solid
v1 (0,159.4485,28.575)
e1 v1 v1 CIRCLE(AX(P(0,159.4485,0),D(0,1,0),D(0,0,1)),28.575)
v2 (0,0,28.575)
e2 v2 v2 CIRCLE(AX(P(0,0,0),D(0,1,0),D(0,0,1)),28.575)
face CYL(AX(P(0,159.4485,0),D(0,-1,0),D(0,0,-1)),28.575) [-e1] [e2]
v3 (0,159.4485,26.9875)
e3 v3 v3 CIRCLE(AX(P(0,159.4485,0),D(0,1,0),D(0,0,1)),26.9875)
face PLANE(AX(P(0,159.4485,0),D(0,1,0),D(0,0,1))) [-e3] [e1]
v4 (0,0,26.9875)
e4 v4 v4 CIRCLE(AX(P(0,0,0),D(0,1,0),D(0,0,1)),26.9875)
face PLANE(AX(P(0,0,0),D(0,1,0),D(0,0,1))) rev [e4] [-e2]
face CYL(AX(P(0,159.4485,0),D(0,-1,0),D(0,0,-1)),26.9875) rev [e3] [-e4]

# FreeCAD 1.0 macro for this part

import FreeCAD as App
import Part
import Sketcher
Q = App.Units.Quantity

doc = App.newDocument("Part")
body = doc.addObject("PartDesign::Body", "Body")

# Sketch on XZ plane
sketch1 = body.newObject("Sketcher::SketchObject", "Sketch")
sketch1.AttachmentSupport = (doc.getObject("XZ_Plane"), [""])
sketch1.MapMode = "FlatFace"
sketch1.addGeometry(Part.Circle(App.Vector(0, 0, 0), App.Vector(0, 0, 1), 28.575), False)
sketch1.addGeometry(Part.Circle(App.Vector(0, 0, 0), App.Vector(0, 0, 1), 26.9875), False)
sketch1.addConstraint(Sketcher.Constraint("Coincident", 0, 3, -1, 1))
sketch1.addConstraint(Sketcher.Constraint("Coincident", 1, 3, -1, 1))
sketch1.addConstraint(Sketcher.Constraint("Diameter", 0, Q("2.25 in")))
sketch1.addConstraint(Sketcher.Constraint("Diameter", 1, Q("2.125 in")))
pad1 = body.newObject("PartDesign::Pad", "Pad")
pad1.Profile = sketch1
pad1.Length = Q("6.2775 in")
pad1.Reversed = True

doc.recompute()
